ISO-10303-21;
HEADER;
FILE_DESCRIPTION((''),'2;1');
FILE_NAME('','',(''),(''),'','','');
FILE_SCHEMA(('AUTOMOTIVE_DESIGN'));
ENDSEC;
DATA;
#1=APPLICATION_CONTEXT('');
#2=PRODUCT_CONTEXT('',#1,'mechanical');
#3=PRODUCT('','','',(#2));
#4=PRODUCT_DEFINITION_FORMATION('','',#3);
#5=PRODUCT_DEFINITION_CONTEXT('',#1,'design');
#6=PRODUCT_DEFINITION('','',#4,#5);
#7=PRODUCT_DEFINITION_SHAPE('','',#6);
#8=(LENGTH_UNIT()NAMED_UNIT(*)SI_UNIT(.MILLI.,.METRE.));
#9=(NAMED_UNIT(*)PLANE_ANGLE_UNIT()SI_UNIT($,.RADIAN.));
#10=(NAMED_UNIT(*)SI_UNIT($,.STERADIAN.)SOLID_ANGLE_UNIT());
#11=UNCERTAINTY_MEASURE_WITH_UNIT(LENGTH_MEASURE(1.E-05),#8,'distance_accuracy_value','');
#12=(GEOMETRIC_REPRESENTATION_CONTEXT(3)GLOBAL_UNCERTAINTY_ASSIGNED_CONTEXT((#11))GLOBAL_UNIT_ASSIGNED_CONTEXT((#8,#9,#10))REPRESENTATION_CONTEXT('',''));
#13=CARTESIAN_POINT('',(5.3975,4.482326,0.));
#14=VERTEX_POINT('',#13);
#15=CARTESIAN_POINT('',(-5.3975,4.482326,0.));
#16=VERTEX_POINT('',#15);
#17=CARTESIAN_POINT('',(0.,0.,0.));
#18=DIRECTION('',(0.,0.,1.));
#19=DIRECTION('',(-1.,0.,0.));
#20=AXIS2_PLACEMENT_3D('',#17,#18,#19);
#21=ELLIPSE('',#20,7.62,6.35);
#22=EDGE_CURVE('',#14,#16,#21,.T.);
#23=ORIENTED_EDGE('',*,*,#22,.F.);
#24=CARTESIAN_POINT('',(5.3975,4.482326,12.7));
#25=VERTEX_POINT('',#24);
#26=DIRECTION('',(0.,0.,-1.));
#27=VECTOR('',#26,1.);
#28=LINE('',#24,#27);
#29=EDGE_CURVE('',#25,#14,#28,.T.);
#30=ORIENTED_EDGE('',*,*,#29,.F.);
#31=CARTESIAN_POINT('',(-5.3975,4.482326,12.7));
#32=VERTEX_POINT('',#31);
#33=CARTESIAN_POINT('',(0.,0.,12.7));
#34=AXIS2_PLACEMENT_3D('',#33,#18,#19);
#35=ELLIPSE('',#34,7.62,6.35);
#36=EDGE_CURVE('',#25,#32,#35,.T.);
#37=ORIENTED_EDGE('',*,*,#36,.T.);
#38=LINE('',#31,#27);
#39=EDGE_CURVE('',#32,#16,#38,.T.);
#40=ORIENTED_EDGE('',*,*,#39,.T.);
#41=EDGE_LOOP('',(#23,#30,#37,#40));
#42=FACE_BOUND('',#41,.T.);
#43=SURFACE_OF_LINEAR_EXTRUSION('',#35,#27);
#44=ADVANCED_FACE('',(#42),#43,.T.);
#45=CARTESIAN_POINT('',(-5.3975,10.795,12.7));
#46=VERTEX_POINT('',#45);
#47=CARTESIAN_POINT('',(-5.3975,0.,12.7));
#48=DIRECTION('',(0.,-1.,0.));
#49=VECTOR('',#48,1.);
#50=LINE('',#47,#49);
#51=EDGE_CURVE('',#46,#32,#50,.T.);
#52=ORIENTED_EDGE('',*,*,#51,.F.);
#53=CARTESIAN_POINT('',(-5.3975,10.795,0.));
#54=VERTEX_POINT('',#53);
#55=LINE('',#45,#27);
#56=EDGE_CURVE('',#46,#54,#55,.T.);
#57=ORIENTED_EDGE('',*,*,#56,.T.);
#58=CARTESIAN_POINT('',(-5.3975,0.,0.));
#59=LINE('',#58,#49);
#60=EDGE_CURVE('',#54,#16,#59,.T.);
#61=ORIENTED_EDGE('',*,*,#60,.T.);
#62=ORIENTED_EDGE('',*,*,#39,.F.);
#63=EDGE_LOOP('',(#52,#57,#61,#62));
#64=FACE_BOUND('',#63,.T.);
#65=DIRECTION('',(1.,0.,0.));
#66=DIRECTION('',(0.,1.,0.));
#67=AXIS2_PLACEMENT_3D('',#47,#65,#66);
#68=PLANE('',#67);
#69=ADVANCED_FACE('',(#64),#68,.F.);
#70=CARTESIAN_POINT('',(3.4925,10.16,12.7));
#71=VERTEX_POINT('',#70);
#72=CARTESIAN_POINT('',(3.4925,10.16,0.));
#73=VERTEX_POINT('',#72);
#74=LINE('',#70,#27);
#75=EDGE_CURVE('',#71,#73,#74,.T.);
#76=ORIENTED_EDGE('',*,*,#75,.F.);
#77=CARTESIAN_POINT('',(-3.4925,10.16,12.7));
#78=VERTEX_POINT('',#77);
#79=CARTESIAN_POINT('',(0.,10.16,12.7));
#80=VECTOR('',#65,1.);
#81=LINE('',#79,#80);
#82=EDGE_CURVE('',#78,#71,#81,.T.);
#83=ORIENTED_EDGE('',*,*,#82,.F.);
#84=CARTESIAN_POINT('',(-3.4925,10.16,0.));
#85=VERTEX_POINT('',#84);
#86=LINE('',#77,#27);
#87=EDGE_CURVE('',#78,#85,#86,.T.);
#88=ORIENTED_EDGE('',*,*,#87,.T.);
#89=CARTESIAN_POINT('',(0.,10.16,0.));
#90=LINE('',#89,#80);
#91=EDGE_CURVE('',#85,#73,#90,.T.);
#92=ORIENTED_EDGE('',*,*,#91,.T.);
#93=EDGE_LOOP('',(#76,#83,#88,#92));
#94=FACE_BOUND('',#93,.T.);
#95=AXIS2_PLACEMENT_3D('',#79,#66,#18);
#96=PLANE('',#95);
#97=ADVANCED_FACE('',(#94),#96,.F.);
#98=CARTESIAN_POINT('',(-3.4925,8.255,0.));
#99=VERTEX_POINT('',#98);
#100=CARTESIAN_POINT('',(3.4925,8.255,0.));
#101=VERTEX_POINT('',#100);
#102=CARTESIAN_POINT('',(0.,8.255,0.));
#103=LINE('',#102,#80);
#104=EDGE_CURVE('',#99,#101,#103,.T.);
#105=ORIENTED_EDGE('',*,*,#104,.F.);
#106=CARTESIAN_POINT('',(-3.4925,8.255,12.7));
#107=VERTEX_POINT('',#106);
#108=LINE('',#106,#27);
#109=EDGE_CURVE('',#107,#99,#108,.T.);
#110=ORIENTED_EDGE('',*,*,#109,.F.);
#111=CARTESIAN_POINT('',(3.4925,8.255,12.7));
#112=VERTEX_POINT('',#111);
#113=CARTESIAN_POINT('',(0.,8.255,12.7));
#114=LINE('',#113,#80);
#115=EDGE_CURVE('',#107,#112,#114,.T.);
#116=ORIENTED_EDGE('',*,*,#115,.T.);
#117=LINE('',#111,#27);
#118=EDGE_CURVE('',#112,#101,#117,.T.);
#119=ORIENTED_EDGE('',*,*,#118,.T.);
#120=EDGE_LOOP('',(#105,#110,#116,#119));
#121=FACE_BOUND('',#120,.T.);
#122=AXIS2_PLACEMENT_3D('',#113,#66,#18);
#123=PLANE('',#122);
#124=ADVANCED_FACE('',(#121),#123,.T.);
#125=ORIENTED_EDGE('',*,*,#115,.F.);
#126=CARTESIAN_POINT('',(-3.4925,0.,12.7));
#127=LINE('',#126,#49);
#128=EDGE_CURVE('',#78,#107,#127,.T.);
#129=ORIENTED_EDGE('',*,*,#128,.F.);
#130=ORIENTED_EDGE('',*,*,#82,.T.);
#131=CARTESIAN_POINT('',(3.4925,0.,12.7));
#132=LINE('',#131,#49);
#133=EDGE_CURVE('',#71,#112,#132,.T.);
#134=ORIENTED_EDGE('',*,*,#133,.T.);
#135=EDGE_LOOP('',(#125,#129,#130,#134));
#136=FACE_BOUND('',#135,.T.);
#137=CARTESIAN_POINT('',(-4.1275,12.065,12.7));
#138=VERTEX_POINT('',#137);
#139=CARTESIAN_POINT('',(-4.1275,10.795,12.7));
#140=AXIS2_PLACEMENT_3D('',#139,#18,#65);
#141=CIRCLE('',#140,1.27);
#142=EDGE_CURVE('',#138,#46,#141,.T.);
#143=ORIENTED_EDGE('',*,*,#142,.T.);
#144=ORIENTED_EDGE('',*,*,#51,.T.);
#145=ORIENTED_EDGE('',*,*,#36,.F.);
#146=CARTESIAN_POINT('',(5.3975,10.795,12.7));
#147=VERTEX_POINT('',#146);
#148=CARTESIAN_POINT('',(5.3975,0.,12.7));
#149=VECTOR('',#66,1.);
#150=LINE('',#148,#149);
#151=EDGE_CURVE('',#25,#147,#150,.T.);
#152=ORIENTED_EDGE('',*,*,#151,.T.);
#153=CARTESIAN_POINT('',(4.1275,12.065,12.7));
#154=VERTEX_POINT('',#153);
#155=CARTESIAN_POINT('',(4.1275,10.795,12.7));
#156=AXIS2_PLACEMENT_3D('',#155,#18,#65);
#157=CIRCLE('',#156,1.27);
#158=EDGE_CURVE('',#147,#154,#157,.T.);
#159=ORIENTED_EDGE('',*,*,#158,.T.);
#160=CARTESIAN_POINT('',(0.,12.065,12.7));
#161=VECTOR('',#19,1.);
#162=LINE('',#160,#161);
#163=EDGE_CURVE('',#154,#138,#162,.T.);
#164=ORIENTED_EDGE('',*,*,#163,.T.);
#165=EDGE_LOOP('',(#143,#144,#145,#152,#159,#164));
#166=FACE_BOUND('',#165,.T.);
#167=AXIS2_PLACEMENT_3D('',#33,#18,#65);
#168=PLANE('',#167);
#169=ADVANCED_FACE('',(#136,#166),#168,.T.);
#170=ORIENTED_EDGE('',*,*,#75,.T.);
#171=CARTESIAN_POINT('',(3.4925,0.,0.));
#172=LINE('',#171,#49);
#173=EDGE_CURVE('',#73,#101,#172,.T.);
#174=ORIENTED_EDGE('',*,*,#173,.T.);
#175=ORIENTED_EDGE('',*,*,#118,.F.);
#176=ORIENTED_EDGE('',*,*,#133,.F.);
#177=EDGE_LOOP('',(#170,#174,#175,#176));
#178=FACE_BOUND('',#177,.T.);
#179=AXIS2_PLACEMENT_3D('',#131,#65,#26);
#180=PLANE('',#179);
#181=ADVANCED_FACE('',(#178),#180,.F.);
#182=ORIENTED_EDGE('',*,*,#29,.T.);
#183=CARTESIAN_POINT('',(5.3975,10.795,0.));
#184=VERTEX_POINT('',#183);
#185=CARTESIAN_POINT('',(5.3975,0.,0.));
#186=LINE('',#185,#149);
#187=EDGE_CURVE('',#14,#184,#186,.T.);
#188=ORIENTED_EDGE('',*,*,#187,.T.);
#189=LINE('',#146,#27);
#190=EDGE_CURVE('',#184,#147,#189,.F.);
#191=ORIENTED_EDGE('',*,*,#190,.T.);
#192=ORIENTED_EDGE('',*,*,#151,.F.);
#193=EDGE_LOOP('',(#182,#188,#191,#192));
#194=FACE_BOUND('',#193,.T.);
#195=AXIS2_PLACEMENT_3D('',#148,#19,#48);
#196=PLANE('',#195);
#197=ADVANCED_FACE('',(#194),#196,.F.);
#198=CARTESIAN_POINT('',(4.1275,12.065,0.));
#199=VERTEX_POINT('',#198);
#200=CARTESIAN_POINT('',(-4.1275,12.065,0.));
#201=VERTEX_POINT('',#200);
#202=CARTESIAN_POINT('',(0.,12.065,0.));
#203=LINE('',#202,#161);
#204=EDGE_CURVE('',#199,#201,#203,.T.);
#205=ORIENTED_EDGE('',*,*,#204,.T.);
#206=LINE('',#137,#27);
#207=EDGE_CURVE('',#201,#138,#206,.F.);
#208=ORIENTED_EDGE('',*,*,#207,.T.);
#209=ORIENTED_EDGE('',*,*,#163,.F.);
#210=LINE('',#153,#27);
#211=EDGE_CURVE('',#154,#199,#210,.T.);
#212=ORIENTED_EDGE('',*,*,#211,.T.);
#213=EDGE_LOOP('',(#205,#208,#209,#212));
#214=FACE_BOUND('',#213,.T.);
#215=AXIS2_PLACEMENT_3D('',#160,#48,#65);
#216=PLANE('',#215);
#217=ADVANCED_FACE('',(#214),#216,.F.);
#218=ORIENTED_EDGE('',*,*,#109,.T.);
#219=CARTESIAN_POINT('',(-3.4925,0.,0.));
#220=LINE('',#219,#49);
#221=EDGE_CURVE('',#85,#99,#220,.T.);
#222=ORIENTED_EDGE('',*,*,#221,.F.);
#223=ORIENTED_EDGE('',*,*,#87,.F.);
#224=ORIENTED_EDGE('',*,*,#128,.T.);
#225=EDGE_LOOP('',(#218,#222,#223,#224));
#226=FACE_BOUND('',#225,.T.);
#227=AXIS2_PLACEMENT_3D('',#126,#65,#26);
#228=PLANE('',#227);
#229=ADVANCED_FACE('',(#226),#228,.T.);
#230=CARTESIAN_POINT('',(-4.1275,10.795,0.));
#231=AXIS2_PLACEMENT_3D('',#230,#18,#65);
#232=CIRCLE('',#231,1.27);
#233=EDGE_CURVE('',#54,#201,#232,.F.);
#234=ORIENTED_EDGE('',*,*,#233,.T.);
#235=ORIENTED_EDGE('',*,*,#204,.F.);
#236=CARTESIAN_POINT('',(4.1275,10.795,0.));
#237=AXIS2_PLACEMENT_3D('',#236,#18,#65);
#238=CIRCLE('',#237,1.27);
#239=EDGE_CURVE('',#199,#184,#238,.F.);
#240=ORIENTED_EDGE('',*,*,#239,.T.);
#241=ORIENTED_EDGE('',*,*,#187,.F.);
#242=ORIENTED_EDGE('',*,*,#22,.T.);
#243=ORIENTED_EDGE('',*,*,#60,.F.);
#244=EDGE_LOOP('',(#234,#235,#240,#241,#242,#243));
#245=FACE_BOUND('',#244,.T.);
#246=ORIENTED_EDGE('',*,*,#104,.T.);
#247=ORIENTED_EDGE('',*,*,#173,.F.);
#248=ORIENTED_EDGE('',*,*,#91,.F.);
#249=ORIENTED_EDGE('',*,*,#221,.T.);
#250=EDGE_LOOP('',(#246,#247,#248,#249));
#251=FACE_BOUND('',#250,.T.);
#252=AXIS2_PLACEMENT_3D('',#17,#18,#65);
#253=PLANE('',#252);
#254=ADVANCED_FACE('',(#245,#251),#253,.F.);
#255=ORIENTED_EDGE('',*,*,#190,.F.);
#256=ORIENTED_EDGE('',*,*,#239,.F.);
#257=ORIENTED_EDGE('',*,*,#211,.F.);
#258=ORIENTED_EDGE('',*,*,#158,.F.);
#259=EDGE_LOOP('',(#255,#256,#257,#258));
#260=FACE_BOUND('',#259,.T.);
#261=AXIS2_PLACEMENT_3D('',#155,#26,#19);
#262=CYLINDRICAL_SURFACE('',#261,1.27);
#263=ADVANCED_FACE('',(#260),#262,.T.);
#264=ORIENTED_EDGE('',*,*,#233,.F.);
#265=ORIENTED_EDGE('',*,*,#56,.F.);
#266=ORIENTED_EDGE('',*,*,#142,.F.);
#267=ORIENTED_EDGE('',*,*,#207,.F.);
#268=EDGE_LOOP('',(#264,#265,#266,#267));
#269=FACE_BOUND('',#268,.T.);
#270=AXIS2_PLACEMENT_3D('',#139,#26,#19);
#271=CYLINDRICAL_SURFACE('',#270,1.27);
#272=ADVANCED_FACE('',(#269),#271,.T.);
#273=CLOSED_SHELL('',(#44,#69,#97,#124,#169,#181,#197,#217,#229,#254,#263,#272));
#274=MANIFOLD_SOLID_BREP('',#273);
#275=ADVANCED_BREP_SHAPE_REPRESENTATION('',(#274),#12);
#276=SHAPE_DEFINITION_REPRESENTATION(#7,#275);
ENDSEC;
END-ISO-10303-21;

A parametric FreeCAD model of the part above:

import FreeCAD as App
import Part
import Sketcher
Q = App.Units.Quantity


def edges_at(feature, points):
    """Names of the edges that pass closest to the given points."""
    edges = feature.Shape.Edges
    near = lambda p: min(range(len(edges)), key=lambda i: edges[i].distToShape(Part.Vertex(*p))[0])
    return sorted({f"Edge{near(p) + 1}" for p in points})

doc = App.newDocument("Part")
body = doc.addObject("PartDesign::Body", "Body")

sketch1 = body.newObject("Sketcher::SketchObject", "Sketch")
sketch1.AttachmentSupport = (doc.getObject("XY_Plane"), [""])
sketch1.MapMode = "FlatFace"
sketch1.addGeometry([
    Part.BSplineCurve([App.Vector(5.3975, 4.482326, 0), App.Vector(0, 8.995888, 0), App.Vector(-5.3975, 4.482326, 0)], [3, 3], [3.925254702, 5.499523258], False, 2, [1, 0.705878098, 1], False),
    Part.LineSegment(App.Vector(5.3975, 4.482326, 0), App.Vector(5.3975, 12.065, 0)),
    Part.LineSegment(App.Vector(5.3975, 12.065, 0), App.Vector(-5.3975, 12.065, 0)),
    Part.LineSegment(App.Vector(-5.3975, 12.065, 0), App.Vector(-5.3975, 4.482326, 0)),
    Part.LineSegment(App.Vector(-3.4925, 8.255, 0), App.Vector(-3.4925, 10.16, 0)),
    Part.LineSegment(App.Vector(-3.4925, 10.16, 0), App.Vector(3.4925, 10.16, 0)),
    Part.LineSegment(App.Vector(3.4925, 10.16, 0), App.Vector(3.4925, 8.255, 0)),
    Part.LineSegment(App.Vector(3.4925, 8.255, 0), App.Vector(-3.4925, 8.255, 0)),
], False)
sketch1.addConstraint([
    Sketcher.Constraint("Block", 0),
    Sketcher.Constraint("Coincident", 0, 1, 1, 1),
    Sketcher.Constraint("Coincident", 1, 2, 2, 1),
    Sketcher.Constraint("Coincident", 2, 2, 3, 1),
    Sketcher.Constraint("Coincident", 3, 2, 0, 2),
    Sketcher.Constraint("Coincident", 4, 2, 5, 1),
    Sketcher.Constraint("Coincident", 5, 2, 6, 1),
    Sketcher.Constraint("Coincident", 6, 2, 7, 1),
    Sketcher.Constraint("Coincident", 7, 2, 4, 1),
    Sketcher.Constraint("Vertical", 1),
    Sketcher.Constraint("Horizontal", 2),
    Sketcher.Constraint("Vertical", 3),
    Sketcher.Constraint("Vertical", 4),
    Sketcher.Constraint("Horizontal", 5),
    Sketcher.Constraint("Vertical", 6),
    Sketcher.Constraint("Horizontal", 7),
    Sketcher.Constraint("DistanceY", -1, 1, 4, 2, Q("0.4 in")),
    Sketcher.Constraint("DistanceX", 5, 1, 5, 2, Q("0.275 in")),
    Sketcher.Constraint("DistanceY", 4, 1, 4, 2, Q("0.075 in")),
    Sketcher.Constraint("DistanceX", 4, 2, 1, 2, Q("0.35 in")),
    Sketcher.Constraint("DistanceY", 6, 2, 1, 2, Q("0.15 in")),
])
pad1 = body.newObject("PartDesign::Pad", "Pad")
pad1.Profile = sketch1
pad1.Length = Q("0.5 in")
doc.recompute()

fillet = body.newObject("PartDesign::Fillet", "Fillet")
fillet.Base = (pad1, edges_at(pad1, [(-5.397, 12.065, 6.35), (5.397, 12.065, 6.35)]))
fillet.Radius = Q("0.05 in")

doc.recompute()
